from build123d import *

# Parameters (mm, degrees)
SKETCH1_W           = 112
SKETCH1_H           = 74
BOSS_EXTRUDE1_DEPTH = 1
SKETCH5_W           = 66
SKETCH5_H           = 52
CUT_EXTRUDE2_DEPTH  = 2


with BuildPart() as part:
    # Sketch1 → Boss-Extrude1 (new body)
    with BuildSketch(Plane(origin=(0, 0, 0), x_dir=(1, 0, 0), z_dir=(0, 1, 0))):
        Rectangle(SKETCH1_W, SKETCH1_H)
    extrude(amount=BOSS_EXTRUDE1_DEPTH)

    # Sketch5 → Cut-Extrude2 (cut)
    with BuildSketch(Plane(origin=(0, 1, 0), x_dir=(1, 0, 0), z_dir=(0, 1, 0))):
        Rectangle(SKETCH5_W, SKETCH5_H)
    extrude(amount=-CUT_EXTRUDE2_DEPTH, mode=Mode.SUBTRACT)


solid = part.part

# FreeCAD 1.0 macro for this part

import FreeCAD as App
import Part
import Sketcher

V = App.Vector
Q = App.Units.Quantity

doc = App.newDocument("Part")
body = doc.addObject("PartDesign::Body", "Body")

sketch1 = body.newObject("Sketcher::SketchObject", "Sketch")
sketch1.AttachmentSupport = (doc.getObject("XZ_Plane"), [""])
sketch1.MapMode = "FlatFace"
sketch1.addGeometry(Part.LineSegment(V(-56, -37, 0), V(-56, 37, 0)), False)
sketch1.addGeometry(Part.LineSegment(V(-56, 37, 0), V(56, 37, 0)), False)
sketch1.addGeometry(Part.LineSegment(V(56, 37, 0), V(56, -37, 0)), False)
sketch1.addGeometry(Part.LineSegment(V(56, -37, 0), V(-56, -37, 0)), False)
sketch1.addConstraint(Sketcher.Constraint("Coincident", 0, 2, 1, 1))
sketch1.addConstraint(Sketcher.Constraint("Coincident", 1, 2, 2, 1))
sketch1.addConstraint(Sketcher.Constraint("Coincident", 2, 2, 3, 1))
sketch1.addConstraint(Sketcher.Constraint("Coincident", 3, 2, 0, 1))
sketch1.addConstraint(Sketcher.Constraint("Vertical", 0))
sketch1.addConstraint(Sketcher.Constraint("Horizontal", 1))
sketch1.addConstraint(Sketcher.Constraint("Vertical", 2))
sketch1.addConstraint(Sketcher.Constraint("Horizontal", 3))
sketch1.addConstraint(Sketcher.Constraint("Symmetric", 0, 2, 2, 2, -1, 1))
sketch1.addConstraint(Sketcher.Constraint("DistanceX", 1, 1, 1, 2, Q("112 mm")))
sketch1.addConstraint(Sketcher.Constraint("DistanceY", 0, 1, 0, 2, Q("74 mm")))
pad1 = body.newObject("PartDesign::Pad", "Pad")
pad1.Profile = sketch1
pad1.Length = 1
pad1.Reversed = True

sketch2 = body.newObject("Sketcher::SketchObject", "Sketch001")
sketch2.AttachmentSupport = (doc.getObject("XZ_Plane"), [""])
sketch2.MapMode = "FlatFace"
sketch2.AttachmentOffset = App.Placement(V(0, 0, -1), App.Rotation())
sketch2.addGeometry(Part.LineSegment(V(-33, -26, 0), V(-33, 26, 0)), False)
sketch2.addGeometry(Part.LineSegment(V(-33, 26, 0), V(33, 26, 0)), False)
sketch2.addGeometry(Part.LineSegment(V(33, 26, 0), V(33, -26, 0)), False)
sketch2.addGeometry(Part.LineSegment(V(33, -26, 0), V(-33, -26, 0)), False)
sketch2.addConstraint(Sketcher.Constraint("Coincident", 0, 2, 1, 1))
sketch2.addConstraint(Sketcher.Constraint("Coincident", 1, 2, 2, 1))
sketch2.addConstraint(Sketcher.Constraint("Coincident", 2, 2, 3, 1))
sketch2.addConstraint(Sketcher.Constraint("Coincident", 3, 2, 0, 1))
sketch2.addConstraint(Sketcher.Constraint("Vertical", 0))
sketch2.addConstraint(Sketcher.Constraint("Horizontal", 1))
sketch2.addConstraint(Sketcher.Constraint("Vertical", 2))
sketch2.addConstraint(Sketcher.Constraint("Horizontal", 3))
sketch2.addConstraint(Sketcher.Constraint("Symmetric", 0, 2, 2, 2, -1, 1))
sketch2.addConstraint(Sketcher.Constraint("DistanceX", 1, 1, 1, 2, Q("66 mm")))
sketch2.addConstraint(Sketcher.Constraint("DistanceY", 0, 1, 0, 2, Q("52 mm")))
pocket1 = body.newObject("PartDesign::Pocket", "Pocket")
pocket1.Profile = sketch2
pocket1.Length = 2
pocket1.Reversed = True

doc.recompute()
